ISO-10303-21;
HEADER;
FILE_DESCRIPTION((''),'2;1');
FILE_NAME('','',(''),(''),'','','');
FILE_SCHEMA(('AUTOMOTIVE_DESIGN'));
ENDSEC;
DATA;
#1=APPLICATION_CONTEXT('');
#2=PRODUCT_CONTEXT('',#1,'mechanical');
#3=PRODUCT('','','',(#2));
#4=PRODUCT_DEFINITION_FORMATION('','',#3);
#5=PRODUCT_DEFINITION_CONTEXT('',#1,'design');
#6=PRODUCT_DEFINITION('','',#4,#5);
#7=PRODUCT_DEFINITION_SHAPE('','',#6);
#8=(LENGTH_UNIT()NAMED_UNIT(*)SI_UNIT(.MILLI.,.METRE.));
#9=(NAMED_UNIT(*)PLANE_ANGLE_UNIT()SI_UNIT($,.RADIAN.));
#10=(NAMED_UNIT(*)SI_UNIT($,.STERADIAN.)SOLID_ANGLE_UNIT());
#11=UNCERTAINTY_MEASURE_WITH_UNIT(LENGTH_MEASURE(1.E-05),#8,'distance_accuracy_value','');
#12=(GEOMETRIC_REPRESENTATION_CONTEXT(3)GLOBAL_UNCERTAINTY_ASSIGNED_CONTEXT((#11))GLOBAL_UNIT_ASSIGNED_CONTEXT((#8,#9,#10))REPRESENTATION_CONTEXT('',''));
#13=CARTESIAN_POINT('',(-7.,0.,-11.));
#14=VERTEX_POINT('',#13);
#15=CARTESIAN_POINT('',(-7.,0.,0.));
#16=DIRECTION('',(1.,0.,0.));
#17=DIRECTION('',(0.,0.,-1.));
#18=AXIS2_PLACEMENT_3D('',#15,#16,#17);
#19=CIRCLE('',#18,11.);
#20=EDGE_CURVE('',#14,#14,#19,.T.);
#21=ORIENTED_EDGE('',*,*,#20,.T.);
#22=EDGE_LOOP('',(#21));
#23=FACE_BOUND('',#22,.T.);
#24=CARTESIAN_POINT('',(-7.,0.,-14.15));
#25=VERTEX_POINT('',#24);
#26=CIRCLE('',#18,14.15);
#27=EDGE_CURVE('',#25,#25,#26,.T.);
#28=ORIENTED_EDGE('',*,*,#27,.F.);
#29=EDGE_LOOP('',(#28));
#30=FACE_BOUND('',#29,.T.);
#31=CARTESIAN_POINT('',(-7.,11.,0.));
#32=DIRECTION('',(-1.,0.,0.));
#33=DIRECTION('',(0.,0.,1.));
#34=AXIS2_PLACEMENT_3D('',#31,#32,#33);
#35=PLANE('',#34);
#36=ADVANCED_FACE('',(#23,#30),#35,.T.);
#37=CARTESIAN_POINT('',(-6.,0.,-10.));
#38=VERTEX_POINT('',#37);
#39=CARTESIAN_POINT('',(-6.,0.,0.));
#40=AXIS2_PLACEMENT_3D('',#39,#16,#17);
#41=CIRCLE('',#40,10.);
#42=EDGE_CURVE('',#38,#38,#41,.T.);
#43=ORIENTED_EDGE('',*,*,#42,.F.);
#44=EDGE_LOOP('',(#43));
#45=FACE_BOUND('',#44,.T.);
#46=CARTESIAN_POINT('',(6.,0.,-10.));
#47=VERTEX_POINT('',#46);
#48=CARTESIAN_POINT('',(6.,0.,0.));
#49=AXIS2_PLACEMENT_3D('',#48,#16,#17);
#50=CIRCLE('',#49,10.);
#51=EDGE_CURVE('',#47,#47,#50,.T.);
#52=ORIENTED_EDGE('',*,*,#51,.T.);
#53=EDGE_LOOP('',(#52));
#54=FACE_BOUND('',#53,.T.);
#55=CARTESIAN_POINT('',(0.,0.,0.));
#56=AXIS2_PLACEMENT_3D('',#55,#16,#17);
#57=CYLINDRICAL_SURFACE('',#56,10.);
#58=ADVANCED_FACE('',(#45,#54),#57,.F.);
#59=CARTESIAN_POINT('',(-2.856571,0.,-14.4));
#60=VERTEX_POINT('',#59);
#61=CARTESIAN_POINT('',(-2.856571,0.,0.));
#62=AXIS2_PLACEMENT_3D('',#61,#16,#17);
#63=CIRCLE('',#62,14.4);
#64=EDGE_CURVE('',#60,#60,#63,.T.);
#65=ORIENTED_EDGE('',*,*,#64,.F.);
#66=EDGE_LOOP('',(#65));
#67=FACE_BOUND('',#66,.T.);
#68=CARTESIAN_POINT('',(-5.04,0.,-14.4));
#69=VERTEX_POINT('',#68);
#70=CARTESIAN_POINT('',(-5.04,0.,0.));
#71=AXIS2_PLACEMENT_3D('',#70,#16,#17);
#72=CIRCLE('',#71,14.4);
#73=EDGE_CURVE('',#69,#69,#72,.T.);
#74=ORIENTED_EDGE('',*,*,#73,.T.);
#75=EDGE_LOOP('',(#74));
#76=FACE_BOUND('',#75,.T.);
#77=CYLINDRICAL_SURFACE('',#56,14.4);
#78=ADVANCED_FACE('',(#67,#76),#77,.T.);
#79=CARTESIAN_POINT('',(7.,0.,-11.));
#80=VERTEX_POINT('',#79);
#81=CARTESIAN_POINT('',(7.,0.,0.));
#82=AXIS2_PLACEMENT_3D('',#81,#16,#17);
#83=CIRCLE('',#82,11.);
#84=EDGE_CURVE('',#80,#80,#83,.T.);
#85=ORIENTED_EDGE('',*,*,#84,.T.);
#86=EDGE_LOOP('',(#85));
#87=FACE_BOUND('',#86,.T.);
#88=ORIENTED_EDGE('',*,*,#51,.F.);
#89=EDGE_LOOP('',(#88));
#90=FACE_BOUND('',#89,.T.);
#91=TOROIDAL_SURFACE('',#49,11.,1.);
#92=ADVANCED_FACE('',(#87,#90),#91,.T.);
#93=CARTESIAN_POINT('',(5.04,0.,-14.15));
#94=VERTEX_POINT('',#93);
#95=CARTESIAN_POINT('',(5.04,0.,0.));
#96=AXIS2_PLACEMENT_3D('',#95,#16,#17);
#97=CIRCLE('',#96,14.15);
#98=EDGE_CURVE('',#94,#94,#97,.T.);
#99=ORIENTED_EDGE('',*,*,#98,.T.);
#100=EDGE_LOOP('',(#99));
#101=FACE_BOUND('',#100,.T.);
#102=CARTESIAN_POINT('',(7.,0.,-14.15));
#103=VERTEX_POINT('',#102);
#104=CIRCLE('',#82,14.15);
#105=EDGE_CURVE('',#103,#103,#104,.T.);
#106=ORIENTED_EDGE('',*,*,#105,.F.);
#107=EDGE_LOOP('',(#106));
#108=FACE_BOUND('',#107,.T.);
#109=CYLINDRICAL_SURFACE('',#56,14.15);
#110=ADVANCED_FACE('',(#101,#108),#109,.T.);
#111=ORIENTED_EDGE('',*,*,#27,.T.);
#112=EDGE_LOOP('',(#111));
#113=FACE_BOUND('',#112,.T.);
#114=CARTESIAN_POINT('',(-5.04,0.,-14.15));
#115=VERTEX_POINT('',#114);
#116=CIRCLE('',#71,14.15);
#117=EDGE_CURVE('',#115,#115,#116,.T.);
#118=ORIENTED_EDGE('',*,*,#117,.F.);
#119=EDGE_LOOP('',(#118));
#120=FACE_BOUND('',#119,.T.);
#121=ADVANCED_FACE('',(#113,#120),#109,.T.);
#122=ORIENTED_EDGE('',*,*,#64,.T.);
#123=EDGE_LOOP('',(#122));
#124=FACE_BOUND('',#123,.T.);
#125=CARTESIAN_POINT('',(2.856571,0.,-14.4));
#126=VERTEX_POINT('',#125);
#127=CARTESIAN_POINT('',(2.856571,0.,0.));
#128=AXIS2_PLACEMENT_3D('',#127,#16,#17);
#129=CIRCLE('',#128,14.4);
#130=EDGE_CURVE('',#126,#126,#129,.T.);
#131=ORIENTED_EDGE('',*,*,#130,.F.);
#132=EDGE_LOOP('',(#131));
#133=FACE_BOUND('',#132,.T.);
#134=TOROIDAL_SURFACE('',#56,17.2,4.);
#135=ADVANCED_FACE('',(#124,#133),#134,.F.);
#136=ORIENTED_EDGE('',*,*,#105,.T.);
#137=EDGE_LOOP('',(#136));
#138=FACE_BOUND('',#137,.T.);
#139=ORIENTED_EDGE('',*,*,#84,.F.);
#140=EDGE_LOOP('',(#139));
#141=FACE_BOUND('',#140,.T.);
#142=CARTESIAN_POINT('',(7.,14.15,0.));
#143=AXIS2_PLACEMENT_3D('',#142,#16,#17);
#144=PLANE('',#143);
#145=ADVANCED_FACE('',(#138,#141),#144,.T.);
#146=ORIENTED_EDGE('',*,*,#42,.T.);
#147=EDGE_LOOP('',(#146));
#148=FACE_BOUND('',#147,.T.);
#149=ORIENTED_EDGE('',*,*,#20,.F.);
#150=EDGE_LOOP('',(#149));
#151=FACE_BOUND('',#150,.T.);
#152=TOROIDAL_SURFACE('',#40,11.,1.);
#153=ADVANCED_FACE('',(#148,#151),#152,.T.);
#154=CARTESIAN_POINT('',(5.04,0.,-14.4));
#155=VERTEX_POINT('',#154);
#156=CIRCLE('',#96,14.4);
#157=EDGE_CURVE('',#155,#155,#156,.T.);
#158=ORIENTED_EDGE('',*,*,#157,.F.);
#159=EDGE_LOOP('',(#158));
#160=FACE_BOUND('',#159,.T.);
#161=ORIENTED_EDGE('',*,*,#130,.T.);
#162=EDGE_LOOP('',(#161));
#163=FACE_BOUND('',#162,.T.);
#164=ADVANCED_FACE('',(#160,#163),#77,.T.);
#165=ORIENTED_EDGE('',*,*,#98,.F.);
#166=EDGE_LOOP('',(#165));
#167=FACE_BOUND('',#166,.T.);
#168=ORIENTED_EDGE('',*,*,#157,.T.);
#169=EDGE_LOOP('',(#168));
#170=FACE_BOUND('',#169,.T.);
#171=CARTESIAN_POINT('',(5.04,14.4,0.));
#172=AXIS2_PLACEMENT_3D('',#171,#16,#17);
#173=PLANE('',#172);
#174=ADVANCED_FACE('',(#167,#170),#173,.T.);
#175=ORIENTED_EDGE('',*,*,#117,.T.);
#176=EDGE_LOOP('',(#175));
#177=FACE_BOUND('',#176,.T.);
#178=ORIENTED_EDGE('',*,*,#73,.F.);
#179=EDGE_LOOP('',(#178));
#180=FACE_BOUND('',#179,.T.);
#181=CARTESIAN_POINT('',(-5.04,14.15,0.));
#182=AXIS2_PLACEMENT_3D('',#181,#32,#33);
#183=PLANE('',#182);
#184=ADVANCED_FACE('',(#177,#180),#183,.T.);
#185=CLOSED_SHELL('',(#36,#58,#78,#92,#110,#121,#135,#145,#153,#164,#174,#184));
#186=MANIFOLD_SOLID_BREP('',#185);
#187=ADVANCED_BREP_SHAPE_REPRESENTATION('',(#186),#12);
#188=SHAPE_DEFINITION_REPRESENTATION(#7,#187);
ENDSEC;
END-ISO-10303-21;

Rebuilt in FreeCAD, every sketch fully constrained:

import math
import FreeCAD as App
import Part
import Sketcher

V = App.Vector
Q = App.Units.Quantity

doc = App.newDocument("Part")
params = doc.addObject("Spreadsheet::Sheet", "Params")
for row, (alias, value) in enumerate([
    ("sketch1_radius", "1 mm"),
    ("sketch1_radius2", "4 mm"),
    ("sketch1_width", "12 mm"),
    ("sketch1_width2", "1.96 mm"),
    ("sketch1_height", "3.15 mm"),
    ("revolution_angle", "360 deg"),
], start=1):
    params.set(f"A{row}", alias)
    params.set(f"B{row}", "=" + value)
    params.setAlias(f"B{row}", alias)

body = doc.addObject("PartDesign::Body", "Body")

# Sketch on XY plane
sketch1 = body.newObject("Sketcher::SketchObject", "Sketch")
sketch1.AttachmentSupport = (doc.getObject("XY_Plane"), [""])
sketch1.MapMode = "FlatFace"
sketch1.addGeometry([
    Part.LineSegment(V(-6, 10, 0), V(6, 10, 0)),  # 0
    Part.ArcOfCircle(Part.Circle(V(6, 11, 0), V(0, 0, 1), 1), math.radians(-90), math.radians(0)),  # 1
    Part.LineSegment(V(7, 11, 0), V(7, 14.15, 0)),  # 2
    Part.LineSegment(V(7, 14.15, 0), V(5.04, 14.15, 0)),  # 3
    Part.LineSegment(V(5.04, 14.15, 0), V(5.04, 14.4, 0)),  # 4
    Part.LineSegment(V(5.04, 14.4, 0), V(2.856571, 14.4, 0)),  # 5
    Part.ArcOfCircle(Part.Circle(V(0, 17.2, 0), V(0, 0, 1), 4), math.radians(-135.572996), math.radians(-44.427004)),  # 6
    Part.LineSegment(V(-2.856571, 14.4, 0), V(-5.04, 14.4, 0)),  # 7
    Part.LineSegment(V(-5.04, 14.4, 0), V(-5.04, 14.15, 0)),  # 8
    Part.LineSegment(V(-5.04, 14.15, 0), V(-7, 14.15, 0)),  # 9
    Part.LineSegment(V(-7, 14.15, 0), V(-7, 11, 0)),  # 10
    Part.ArcOfCircle(Part.Circle(V(-6, 11, 0), V(0, 0, 1), 1), math.radians(-180), math.radians(-90)),  # 11
], False)
sketch1.addConstraint([
    Sketcher.Constraint("Tangent", 0, 2, 1, 1),
    Sketcher.Constraint("Tangent", 1, 2, 2, 1),
    Sketcher.Constraint("Coincident", 2, 2, 3, 1),
    Sketcher.Constraint("Coincident", 3, 2, 4, 1),
    Sketcher.Constraint("Coincident", 4, 2, 5, 1),
    Sketcher.Constraint("Coincident", 5, 2, 6, 2),
    Sketcher.Constraint("Coincident", 6, 1, 7, 1),
    Sketcher.Constraint("Coincident", 7, 2, 8, 1),
    Sketcher.Constraint("Coincident", 8, 2, 9, 1),
    Sketcher.Constraint("Coincident", 9, 2, 10, 1),
    Sketcher.Constraint("Tangent", 10, 2, 11, 1),
    Sketcher.Constraint("Tangent", 11, 2, 0, 1),
    Sketcher.Constraint("Horizontal", 0),
    Sketcher.Constraint("Vertical", 2),
    Sketcher.Constraint("Horizontal", 3),
    Sketcher.Constraint("Vertical", 4),
    Sketcher.Constraint("Horizontal", 5),
    Sketcher.Constraint("Horizontal", 7),
    Sketcher.Constraint("Vertical", 8),
    Sketcher.Constraint("Horizontal", 9),
    Sketcher.Constraint("Vertical", 10),
    Sketcher.Constraint("Equal", 1, 11),
    Sketcher.Constraint("Symmetric", 5, 2, 6, 1, -2),
    Sketcher.Constraint("Symmetric", 3, 2, 8, 2, -2),
    Sketcher.Constraint("Equal", 3, 9),
    Sketcher.Constraint("Radius", 1, Q("1 mm")),
    Sketcher.Constraint("Radius", 6, Q("4 mm")),
    Sketcher.Constraint("DistanceX", 0, 1, 0, 2, Q("12 mm")),
    Sketcher.Constraint("DistanceY", -1, 1, 1, 3, Q("11 mm")),
    Sketcher.Constraint("DistanceX", 3, 2, 3, 1, Q("1.96 mm")),
    Sketcher.Constraint("DistanceY", 2, 1, 2, 2, Q("3.15 mm")),
    Sketcher.Constraint("DistanceY", 4, 1, 4, 2, Q("0.25 mm")),
    Sketcher.Constraint("DistanceY", -1, 1, 6, 3, Q("17.2 mm")),
])
sketch1.setExpression("Constraints[25]", "Params.sketch1_radius")
sketch1.setExpression("Constraints[26]", "Params.sketch1_radius2")
sketch1.setExpression("Constraints[27]", "Params.sketch1_width")
sketch1.setExpression("Constraints[29]", "Params.sketch1_width2")
sketch1.setExpression("Constraints[30]", "Params.sketch1_height")
revolution = body.newObject("PartDesign::Revolution", "Revolution")
revolution.Profile = sketch1
revolution.ReferenceAxis = (sketch1, ["H_Axis"])
revolution.setExpression("Angle", "Params.revolution_angle")

doc.recompute()
